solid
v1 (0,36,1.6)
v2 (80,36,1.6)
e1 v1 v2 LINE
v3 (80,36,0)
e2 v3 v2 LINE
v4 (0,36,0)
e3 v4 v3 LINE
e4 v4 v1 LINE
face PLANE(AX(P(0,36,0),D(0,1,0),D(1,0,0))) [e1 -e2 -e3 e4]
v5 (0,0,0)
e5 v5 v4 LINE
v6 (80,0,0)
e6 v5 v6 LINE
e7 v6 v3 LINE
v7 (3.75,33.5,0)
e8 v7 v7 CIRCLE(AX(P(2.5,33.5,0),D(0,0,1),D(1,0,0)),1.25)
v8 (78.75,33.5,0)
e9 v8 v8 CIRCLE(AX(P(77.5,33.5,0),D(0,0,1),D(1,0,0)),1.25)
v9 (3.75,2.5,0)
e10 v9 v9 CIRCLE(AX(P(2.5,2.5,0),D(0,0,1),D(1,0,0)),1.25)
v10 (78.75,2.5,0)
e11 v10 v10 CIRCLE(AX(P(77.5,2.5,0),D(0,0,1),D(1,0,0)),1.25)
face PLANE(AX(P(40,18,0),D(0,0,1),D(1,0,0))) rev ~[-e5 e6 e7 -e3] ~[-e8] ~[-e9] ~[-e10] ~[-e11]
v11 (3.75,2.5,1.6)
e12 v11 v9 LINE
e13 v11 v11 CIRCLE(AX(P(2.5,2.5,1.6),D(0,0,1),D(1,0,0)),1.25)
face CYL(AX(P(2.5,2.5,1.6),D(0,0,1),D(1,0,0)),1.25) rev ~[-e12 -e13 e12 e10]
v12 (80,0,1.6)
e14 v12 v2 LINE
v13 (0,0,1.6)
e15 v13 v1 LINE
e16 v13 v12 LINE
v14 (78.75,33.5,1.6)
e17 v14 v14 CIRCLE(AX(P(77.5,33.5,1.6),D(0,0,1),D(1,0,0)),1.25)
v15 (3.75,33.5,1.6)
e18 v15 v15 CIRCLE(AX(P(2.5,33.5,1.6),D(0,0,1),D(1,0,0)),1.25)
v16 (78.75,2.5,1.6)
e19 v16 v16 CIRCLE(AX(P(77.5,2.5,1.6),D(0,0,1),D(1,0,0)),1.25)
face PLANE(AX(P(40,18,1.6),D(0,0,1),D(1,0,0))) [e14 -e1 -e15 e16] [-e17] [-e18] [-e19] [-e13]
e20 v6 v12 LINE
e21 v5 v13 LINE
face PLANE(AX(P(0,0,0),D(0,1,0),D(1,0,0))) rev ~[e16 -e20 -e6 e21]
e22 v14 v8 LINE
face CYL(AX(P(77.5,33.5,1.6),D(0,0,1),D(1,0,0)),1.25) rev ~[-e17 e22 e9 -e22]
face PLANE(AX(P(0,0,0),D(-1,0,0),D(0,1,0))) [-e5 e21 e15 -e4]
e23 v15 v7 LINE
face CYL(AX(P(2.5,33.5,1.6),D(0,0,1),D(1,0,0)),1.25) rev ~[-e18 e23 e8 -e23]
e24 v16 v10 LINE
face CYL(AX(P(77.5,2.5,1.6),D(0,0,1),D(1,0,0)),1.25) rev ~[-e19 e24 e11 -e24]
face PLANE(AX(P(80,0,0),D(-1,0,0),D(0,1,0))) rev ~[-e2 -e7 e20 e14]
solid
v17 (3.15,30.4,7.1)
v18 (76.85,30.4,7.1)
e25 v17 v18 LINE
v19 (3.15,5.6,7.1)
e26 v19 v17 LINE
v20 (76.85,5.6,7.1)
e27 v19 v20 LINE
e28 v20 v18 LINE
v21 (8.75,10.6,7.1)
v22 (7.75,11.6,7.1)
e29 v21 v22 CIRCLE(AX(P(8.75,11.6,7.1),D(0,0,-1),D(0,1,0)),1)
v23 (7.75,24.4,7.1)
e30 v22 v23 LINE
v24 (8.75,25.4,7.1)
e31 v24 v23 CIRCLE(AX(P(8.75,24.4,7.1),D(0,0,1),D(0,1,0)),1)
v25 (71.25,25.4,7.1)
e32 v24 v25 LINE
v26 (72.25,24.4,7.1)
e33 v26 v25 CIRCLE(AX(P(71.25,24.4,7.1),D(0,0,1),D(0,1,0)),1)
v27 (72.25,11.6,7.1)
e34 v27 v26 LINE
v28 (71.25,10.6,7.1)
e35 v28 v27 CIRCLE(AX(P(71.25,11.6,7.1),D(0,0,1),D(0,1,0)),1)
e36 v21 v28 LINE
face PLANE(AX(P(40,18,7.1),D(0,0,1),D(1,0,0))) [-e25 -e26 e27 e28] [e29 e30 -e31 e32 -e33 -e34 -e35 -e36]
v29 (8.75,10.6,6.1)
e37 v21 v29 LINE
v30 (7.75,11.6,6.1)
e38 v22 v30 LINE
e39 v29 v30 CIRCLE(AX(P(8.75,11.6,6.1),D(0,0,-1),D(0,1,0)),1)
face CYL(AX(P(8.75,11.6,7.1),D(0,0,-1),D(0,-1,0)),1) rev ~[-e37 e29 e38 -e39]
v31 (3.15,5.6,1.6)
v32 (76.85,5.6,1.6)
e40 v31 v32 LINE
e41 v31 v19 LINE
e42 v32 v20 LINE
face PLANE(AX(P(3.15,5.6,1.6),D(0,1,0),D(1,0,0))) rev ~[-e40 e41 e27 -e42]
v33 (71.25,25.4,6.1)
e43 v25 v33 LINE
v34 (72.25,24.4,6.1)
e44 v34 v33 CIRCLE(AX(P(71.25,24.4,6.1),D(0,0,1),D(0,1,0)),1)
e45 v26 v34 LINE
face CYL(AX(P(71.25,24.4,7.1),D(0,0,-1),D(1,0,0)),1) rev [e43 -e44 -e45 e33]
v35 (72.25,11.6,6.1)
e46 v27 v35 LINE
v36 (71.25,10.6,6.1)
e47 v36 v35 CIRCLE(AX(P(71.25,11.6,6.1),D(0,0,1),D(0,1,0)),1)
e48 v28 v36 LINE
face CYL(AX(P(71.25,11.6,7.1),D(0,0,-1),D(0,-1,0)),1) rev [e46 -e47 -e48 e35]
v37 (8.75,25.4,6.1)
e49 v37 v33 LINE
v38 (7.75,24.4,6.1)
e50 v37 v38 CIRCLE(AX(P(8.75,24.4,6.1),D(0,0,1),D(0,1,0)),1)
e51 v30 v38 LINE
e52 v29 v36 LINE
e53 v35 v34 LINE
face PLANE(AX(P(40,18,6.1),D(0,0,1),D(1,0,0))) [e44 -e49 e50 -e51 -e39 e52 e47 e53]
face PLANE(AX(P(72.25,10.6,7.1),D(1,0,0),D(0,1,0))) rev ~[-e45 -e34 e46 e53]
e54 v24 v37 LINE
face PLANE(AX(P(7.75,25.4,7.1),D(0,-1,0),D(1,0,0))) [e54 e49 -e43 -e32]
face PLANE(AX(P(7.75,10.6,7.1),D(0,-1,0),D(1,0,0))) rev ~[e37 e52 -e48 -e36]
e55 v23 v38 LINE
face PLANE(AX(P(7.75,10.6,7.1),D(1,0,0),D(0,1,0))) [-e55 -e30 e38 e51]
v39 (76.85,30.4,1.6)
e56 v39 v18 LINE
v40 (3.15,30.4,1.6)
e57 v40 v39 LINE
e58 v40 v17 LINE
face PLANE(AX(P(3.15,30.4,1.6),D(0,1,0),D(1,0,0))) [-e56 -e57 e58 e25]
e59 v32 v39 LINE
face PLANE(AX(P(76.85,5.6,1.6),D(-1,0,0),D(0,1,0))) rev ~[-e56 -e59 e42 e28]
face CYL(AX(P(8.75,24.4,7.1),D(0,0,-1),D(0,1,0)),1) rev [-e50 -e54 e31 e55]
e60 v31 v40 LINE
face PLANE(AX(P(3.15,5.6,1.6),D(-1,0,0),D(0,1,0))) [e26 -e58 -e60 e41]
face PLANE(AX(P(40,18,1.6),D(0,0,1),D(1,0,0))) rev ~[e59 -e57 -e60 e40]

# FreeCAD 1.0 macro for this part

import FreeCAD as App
import Part
import Sketcher
from FreeCAD import Vector
Q = App.Units.Quantity


def edges_at(feature, points):
    """Names of the edges that pass closest to the given points."""
    edges = feature.Shape.Edges
    near = lambda p: min(range(len(edges)), key=lambda i: edges[i].distToShape(Part.Vertex(*p))[0])
    return sorted({f"Edge{near(p) + 1}" for p in points})


def add_polygon(sketch, points):
    """Adds a closed chain of lines whose ends are joined by coincident constraints."""
    first, n = sketch.GeometryCount, len(points)
    for a, b in zip(points, points[1:] + points[:1]):
        sketch.addGeometry(Part.LineSegment(App.Vector(*a, 0), App.Vector(*b, 0)), False)
    for i in range(n):
        sketch.addConstraint(Sketcher.Constraint("Coincident", first + i, 2, first + (i + 1) % n, 1))

doc = App.newDocument("Part")
params = doc.addObject("Spreadsheet::Sheet", "Params")
for row, (alias, value) in enumerate([
    ("sketch1_width", "80 mm"),
    ("sketch1_height", "36 mm"),
    ("pad1_length", "1.6 mm"),
    ("sketch2_diameter", "2.5 mm"),
    ("sketch3_width", "73.7 mm"),
    ("sketch3_height", "24.8 mm"),
    ("pad2_length", "5.5 mm"),
    ("sketch4_width", "64.5 mm"),
    ("sketch4_height", "14.8 mm"),
    ("pocket2_length", "1 mm"),
    ("fillet_radius", "1 mm"),
], start=1):
    params.set(f"A{row}", alias)
    params.set(f"B{row}", "=" + value)
    params.setAlias(f"B{row}", alias)

body = doc.addObject("PartDesign::Body", "Body")

# Sketch on XY plane
sketch1 = body.newObject("Sketcher::SketchObject", "Sketch")
sketch1.AttachmentSupport = (doc.getObject("XY_Plane"), [""])
sketch1.MapMode = "FlatFace"
add_polygon(sketch1, [(0, 36), (0, 0), (80, 0), (80, 36)])  # lines 0-3
sketch1.addConstraint([
    Sketcher.Constraint("Vertical", 0),
    Sketcher.Constraint("Horizontal", 1),
    Sketcher.Constraint("Vertical", 2),
    Sketcher.Constraint("Horizontal", 3),
    Sketcher.Constraint("Coincident", 0, 2, -1, 1),
    Sketcher.Constraint("DistanceX", 1, 1, 1, 2, Q("80 mm")),
    Sketcher.Constraint("DistanceY", 0, 2, 0, 1, Q("36 mm")),
])
sketch1.setExpression("Constraints[9]", "Params.sketch1_width")
sketch1.setExpression("Constraints[10]", "Params.sketch1_height")
pad1 = body.newObject("PartDesign::Pad", "Pad")
pad1.Profile = sketch1
pad1.setExpression("Length", "Params.pad1_length")

# Sketch on XY plane
sketch2 = body.newObject("Sketcher::SketchObject", "Sketch001")
sketch2.AttachmentSupport = (doc.getObject("XY_Plane"), [""])
sketch2.MapMode = "FlatFace"
sketch2.AttachmentOffset = App.Placement(Vector(0, 0, 1.6), App.Rotation())
sketch2.addGeometry([
    Part.Circle(Vector(2.5, 2.5, 0), Vector(0, 0, 1), 1.2),
    Part.Circle(Vector(2.5, 33.5, 0), Vector(0, 0, 1), 1.2),
    Part.Circle(Vector(77.5, 2.5, 0), Vector(0, 0, 1), 1.2),
    Part.Circle(Vector(77.5, 33.5, 0), Vector(0, 0, 1), 1.2),
], False)
sketch2.addConstraint([
    Sketcher.Constraint("Equal", 0, 1),
    Sketcher.Constraint("Equal", 1, 2),
    Sketcher.Constraint("Equal", 2, 3),
    Sketcher.Constraint("Horizontal", 0, 3, 2, 3),
    Sketcher.Constraint("Horizontal", 1, 3, 3, 3),
    Sketcher.Constraint("Vertical", 0, 3, 1, 3),
    Sketcher.Constraint("Vertical", 2, 3, 3, 3),
    Sketcher.Constraint("Diameter", 0, Q("2.5 mm")),
    Sketcher.Constraint("DistanceY", 0, 3, 1, 3, Q("31 mm")),
    Sketcher.Constraint("DistanceX", 0, 3, 2, 3, Q("75 mm")),
    Sketcher.Constraint("DistanceX", -1, 1, 0, 3, Q("2.5 mm")),
    Sketcher.Constraint("DistanceY", -1, 1, 0, 3, Q("2.5 mm")),
])
sketch2.setExpression("Constraints[7]", "Params.sketch2_diameter")
pocket1 = body.newObject("PartDesign::Pocket", "Pocket")
pocket1.Profile = sketch2
pocket1.Type = "ThroughAll"
body2 = doc.addObject("PartDesign::Body", "Body001")

# Sketch on XY plane
sketch3 = body2.newObject("Sketcher::SketchObject", "Sketch002")
sketch3.AttachmentSupport = (doc.getObject("XY_Plane001"), [""])
sketch3.MapMode = "FlatFace"
sketch3.AttachmentOffset = App.Placement(Vector(0, 0, 1.6), App.Rotation())
add_polygon(sketch3, [(3, 30), (3, 6), (77, 6), (77, 30)])  # lines 0-3
sketch3.addConstraint([
    Sketcher.Constraint("Vertical", 0),
    Sketcher.Constraint("Horizontal", 1),
    Sketcher.Constraint("Vertical", 2),
    Sketcher.Constraint("Horizontal", 3),
    Sketcher.Constraint("DistanceX", 1, 1, 1, 2, Q("73.7 mm")),
    Sketcher.Constraint("DistanceY", 0, 2, 0, 1, Q("24.8 mm")),
    Sketcher.Constraint("DistanceY", -1, 1, 0, 2, Q("5.6 mm")),
    Sketcher.Constraint("DistanceX", -1, 1, 0, 2, Q("3.15 mm")),
])
sketch3.setExpression("Constraints[8]", "Params.sketch3_width")
sketch3.setExpression("Constraints[9]", "Params.sketch3_height")
pad2 = body2.newObject("PartDesign::Pad", "Pad001")
pad2.Profile = sketch3
pad2.setExpression("Length", "Params.pad2_length")

# Sketch on XY plane
sketch4 = body2.newObject("Sketcher::SketchObject", "Sketch003")
sketch4.AttachmentSupport = (doc.getObject("XY_Plane001"), [""])
sketch4.MapMode = "FlatFace"
sketch4.AttachmentOffset = App.Placement(Vector(0, 0, 7.1), App.Rotation())
add_polygon(sketch4, [(8, 25), (8, 11), (72, 11), (72, 25)])  # lines 0-3
sketch4.addConstraint([
    Sketcher.Constraint("Vertical", 0),
    Sketcher.Constraint("Horizontal", 1),
    Sketcher.Constraint("Vertical", 2),
    Sketcher.Constraint("Horizontal", 3),
    Sketcher.Constraint("DistanceX", 1, 1, 1, 2, Q("64.5 mm")),
    Sketcher.Constraint("DistanceY", 0, 2, 0, 1, Q("14.8 mm")),
    Sketcher.Constraint("DistanceY", -1, 1, 0, 2, Q("10.6 mm")),
    Sketcher.Constraint("DistanceX", -1, 1, 0, 2, Q("7.75 mm")),
])
sketch4.setExpression("Constraints[8]", "Params.sketch4_width")
sketch4.setExpression("Constraints[9]", "Params.sketch4_height")
pocket2 = body2.newObject("PartDesign::Pocket", "Pocket001")
pocket2.Profile = sketch4
pocket2.setExpression("Length", "Params.pocket2_length")
doc.recompute()

fillet = body2.newObject("PartDesign::Fillet", "Fillet")
fillet.Base = (pocket2, edges_at(pocket2, [
    (7.75, 25.4, 6.6),
    (7.75, 10.6, 6.6),
    (72.25, 25.4, 6.6),
    (72.25, 10.6, 6.6),
]))
fillet.setExpression("Radius", "Params.fillet_radius")

doc.recompute()
